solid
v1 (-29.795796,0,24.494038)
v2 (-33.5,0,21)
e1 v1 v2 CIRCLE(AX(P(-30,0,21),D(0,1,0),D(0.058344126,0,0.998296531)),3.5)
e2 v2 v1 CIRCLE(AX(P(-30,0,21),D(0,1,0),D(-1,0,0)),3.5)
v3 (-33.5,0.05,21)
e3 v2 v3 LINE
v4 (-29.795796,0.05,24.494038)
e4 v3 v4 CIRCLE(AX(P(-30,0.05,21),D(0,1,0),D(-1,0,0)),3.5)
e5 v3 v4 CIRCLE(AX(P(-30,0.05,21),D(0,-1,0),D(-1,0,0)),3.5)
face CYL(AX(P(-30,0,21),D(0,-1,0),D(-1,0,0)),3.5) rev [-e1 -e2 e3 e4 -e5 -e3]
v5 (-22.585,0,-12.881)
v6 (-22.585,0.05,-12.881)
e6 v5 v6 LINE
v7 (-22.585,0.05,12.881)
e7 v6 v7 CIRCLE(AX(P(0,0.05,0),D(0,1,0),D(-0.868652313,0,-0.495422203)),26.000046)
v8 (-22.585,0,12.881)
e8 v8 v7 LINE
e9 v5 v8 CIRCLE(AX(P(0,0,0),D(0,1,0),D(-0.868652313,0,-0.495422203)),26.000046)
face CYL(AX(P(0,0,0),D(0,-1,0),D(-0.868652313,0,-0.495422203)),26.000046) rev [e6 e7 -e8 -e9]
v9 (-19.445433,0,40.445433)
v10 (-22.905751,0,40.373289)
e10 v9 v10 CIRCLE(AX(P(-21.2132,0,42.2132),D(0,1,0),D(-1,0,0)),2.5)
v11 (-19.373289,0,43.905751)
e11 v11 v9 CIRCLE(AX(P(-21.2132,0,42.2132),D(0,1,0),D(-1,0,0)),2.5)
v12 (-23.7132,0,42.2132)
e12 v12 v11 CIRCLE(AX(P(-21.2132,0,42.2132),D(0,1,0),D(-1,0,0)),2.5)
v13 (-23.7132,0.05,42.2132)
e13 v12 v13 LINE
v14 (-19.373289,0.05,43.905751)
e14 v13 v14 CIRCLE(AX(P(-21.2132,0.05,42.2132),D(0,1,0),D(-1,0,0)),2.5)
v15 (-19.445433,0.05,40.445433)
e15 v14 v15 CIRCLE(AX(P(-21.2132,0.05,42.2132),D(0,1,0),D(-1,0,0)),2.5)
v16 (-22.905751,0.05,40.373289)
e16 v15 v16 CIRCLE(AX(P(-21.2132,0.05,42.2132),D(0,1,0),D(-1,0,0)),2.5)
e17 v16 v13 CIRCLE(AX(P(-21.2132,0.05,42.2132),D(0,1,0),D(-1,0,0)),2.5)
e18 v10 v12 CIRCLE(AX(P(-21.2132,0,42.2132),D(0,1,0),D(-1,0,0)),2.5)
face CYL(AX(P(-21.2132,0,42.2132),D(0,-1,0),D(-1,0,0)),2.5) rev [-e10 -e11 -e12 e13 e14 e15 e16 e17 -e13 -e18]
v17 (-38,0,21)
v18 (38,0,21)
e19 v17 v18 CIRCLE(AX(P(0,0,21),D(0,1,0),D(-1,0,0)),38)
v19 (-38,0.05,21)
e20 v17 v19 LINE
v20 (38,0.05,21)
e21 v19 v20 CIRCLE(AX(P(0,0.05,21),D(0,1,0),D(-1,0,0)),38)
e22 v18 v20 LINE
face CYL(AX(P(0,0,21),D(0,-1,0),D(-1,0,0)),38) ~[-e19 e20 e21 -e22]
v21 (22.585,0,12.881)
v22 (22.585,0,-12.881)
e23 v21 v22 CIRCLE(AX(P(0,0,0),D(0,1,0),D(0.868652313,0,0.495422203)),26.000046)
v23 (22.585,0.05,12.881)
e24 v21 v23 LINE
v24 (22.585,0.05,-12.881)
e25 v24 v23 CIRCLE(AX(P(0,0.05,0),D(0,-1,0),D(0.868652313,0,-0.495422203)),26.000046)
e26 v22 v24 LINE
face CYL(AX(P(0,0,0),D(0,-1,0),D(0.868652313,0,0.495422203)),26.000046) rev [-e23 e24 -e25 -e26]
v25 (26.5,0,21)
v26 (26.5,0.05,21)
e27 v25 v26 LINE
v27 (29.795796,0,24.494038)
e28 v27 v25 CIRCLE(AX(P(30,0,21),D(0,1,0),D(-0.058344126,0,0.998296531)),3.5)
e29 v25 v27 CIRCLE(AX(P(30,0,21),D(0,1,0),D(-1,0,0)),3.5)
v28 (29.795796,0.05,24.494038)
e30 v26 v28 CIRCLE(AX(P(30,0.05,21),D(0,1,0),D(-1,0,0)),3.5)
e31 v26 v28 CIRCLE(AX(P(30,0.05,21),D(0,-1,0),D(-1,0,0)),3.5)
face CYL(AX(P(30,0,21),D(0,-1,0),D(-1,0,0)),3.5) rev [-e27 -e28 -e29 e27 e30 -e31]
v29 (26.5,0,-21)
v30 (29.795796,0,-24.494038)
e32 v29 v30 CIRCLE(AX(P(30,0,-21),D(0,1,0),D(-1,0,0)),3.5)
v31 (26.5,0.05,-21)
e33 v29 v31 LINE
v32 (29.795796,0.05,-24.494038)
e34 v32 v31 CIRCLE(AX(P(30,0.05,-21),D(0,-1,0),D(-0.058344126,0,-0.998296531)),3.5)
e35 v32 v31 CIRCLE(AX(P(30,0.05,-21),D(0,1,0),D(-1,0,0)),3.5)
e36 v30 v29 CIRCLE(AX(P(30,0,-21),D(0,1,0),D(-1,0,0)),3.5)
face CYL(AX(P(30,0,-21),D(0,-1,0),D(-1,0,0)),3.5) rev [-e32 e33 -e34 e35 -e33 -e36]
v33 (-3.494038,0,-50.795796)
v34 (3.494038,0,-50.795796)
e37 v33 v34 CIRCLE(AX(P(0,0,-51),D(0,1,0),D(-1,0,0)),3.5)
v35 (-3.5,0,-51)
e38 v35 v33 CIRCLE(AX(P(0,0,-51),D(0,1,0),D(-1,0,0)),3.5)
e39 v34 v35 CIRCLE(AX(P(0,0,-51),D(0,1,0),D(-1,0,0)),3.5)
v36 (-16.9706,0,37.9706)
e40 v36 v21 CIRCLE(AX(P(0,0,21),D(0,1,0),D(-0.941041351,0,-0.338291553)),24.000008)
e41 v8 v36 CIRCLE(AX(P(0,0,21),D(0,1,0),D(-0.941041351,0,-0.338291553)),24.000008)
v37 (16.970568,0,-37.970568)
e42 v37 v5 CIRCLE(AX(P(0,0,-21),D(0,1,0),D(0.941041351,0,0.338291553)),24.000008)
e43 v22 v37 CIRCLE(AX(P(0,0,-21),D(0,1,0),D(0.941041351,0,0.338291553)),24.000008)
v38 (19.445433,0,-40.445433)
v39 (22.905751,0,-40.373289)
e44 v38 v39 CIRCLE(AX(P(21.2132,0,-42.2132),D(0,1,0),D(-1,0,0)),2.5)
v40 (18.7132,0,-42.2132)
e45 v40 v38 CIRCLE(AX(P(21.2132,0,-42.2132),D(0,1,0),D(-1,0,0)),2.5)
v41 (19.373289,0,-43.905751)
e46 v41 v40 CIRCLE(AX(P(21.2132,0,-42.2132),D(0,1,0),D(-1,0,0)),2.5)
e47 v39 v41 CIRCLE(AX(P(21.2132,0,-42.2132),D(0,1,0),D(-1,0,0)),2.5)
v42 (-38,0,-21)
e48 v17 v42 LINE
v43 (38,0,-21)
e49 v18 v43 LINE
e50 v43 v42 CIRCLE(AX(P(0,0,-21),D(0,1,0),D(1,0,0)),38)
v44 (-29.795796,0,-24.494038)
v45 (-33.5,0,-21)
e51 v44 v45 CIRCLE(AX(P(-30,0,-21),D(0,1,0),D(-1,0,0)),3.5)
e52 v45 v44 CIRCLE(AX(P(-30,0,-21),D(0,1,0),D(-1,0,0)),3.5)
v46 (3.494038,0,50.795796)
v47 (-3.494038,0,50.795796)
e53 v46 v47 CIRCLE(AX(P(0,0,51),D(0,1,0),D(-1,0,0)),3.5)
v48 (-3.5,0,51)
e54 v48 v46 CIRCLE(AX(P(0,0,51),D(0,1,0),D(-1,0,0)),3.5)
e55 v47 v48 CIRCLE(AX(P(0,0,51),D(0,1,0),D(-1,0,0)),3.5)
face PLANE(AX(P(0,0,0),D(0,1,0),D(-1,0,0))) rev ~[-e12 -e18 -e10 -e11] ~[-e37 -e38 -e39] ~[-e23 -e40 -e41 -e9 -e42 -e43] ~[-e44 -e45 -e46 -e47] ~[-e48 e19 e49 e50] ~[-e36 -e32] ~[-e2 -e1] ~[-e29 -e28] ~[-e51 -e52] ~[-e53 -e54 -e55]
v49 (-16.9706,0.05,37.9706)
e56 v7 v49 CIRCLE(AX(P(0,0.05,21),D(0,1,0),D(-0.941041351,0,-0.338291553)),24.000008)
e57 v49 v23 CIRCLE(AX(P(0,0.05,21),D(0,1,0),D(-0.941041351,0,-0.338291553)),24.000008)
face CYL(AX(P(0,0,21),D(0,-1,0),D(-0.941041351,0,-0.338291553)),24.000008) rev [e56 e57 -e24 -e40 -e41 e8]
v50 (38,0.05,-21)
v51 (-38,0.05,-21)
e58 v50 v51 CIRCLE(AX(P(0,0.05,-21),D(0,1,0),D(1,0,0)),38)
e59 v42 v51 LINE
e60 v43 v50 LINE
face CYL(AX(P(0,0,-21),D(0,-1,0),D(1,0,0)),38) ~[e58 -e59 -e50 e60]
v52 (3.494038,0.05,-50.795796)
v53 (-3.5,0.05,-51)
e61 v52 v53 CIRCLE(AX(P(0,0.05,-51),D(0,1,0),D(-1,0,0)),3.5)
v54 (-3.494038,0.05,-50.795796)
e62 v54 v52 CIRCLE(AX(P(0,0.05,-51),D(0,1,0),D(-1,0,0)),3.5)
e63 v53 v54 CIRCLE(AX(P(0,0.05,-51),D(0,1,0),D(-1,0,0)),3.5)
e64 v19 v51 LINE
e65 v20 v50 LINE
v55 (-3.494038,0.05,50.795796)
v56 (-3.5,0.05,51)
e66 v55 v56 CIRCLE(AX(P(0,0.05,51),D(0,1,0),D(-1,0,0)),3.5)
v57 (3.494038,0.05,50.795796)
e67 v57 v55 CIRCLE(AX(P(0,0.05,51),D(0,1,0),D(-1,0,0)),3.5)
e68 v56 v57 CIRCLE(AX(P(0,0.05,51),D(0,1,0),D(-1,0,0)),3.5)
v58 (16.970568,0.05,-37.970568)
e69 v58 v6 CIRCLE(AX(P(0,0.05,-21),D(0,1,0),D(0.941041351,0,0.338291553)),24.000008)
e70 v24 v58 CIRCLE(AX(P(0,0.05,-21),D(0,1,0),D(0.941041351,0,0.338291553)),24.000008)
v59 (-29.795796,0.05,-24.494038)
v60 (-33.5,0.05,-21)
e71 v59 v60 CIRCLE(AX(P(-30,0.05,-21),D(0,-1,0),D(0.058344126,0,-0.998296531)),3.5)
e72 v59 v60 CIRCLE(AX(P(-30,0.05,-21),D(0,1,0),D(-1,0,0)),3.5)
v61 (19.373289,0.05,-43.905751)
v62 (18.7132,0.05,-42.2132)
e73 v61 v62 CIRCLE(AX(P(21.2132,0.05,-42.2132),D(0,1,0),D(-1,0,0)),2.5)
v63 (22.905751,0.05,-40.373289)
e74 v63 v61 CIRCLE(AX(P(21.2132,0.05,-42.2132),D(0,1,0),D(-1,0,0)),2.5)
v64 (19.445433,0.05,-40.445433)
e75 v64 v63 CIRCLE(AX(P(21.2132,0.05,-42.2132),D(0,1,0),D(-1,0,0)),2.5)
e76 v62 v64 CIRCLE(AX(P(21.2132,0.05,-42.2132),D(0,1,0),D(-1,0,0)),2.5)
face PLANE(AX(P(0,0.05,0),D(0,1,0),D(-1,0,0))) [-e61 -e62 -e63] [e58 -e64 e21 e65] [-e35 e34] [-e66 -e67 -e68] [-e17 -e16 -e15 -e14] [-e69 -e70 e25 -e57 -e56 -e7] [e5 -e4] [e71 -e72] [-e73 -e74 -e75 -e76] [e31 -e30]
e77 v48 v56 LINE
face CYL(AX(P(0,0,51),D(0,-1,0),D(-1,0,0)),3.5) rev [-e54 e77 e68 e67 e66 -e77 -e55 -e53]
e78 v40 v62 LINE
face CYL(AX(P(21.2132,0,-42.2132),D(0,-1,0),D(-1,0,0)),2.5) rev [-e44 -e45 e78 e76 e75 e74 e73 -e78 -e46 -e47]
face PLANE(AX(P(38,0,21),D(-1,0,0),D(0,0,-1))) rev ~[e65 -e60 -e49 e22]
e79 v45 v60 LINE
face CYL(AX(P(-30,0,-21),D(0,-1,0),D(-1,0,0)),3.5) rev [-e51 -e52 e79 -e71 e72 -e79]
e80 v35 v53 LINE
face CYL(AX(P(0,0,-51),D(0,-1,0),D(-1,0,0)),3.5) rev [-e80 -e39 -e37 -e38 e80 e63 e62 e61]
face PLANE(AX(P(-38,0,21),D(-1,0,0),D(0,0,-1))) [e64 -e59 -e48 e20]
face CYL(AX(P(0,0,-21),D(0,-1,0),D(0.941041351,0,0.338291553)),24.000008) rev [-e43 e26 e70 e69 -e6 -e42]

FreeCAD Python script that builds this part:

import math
import FreeCAD as App
import Part
import Sketcher

doc = App.newDocument("Part")
params = doc.addObject("Spreadsheet::Sheet", "Params")
for row, (alias, value) in enumerate([
    ("sketch1_diameter", "7 mm"),
    ("sketch1_radius", "2.5 mm"),
    ("sketch1_height", "42 mm"),
    ("sketch1_radius2", "38 mm"),
    ("sketch1_radius3", "24 mm"),
    ("pad1_length", "0.05 mm"),
], start=1):
    params.set(f"A{row}", alias)
    params.set(f"B{row}", "=" + value)
    params.setAlias(f"B{row}", alias)

body = doc.addObject("PartDesign::Body", "Body")

# Sketch on XZ plane
sketch1 = body.newObject("Sketcher::SketchObject", "Sketch")
sketch1.AttachmentSupport = (doc.getObject("XZ_Plane"), [""])
sketch1.MapMode = "FlatFace"
sketch1.addGeometry(Part.LineSegment(App.Vector(-38, -21, 0), App.Vector(-38, 21, 0)), False)
sketch1.addGeometry(Part.ArcOfCircle(Part.Circle(App.Vector(0, 21, 0), App.Vector(0, 0, 1), 38), math.radians(0), math.radians(180)), False)
sketch1.addGeometry(Part.LineSegment(App.Vector(38, 21, 0), App.Vector(38, -21, 0)), False)
sketch1.addGeometry(Part.ArcOfCircle(Part.Circle(App.Vector(0, -21, 0), App.Vector(0, 0, 1), 38), math.radians(180), math.radians(360)), False)
sketch1.addGeometry(Part.ArcOfCircle(Part.Circle(App.Vector(21.2, -42.2, 0), App.Vector(0, 0, 1), 2.5), math.radians(47), math.radians(135)), False)
sketch1.addGeometry(Part.ArcOfCircle(Part.Circle(App.Vector(21.2, -42.2, 0), App.Vector(0, 0, 1), 2.5), math.radians(135), math.radians(223)), False)
sketch1.addGeometry(Part.ArcOfCircle(Part.Circle(App.Vector(21.2, -42.2, 0), App.Vector(0, 0, 1), 2.5), math.radians(-137), math.radians(47)), False)
sketch1.addGeometry(Part.Circle(App.Vector(30, -21, 0), App.Vector(0, 0, 1), 3.5), False)
sketch1.addGeometry(Part.ArcOfCircle(Part.Circle(App.Vector(0, -51, 0), App.Vector(0, 0, 1), 3.5), math.radians(3), math.radians(177)), False)
sketch1.addGeometry(Part.ArcOfCircle(Part.Circle(App.Vector(0, -51, 0), App.Vector(0, 0, 1), 3.5), math.radians(177), math.radians(363)), False)
sketch1.addGeometry(Part.Circle(App.Vector(-30, -21, 0), App.Vector(0, 0, 1), 3.5), False)
sketch1.addGeometry(Part.Circle(App.Vector(30, 21, 0), App.Vector(0, 0, 1), 3.5), False)
sketch1.addGeometry(Part.ArcOfCircle(Part.Circle(App.Vector(0, 21, 0), App.Vector(0, 0, 1), 24), math.radians(-20), math.radians(135)), False)
sketch1.addGeometry(Part.ArcOfCircle(Part.Circle(App.Vector(0, 21, 0), App.Vector(0, 0, 1), 24), math.radians(135), math.radians(200)), False)
sketch1.addGeometry(Part.ArcOfCircle(Part.Circle(App.Vector(0, 0, 0), App.Vector(0, 0, 1), 26), math.radians(150), math.radians(210)), False)
sketch1.addGeometry(Part.ArcOfCircle(Part.Circle(App.Vector(0, -21, 0), App.Vector(0, 0, 1), 24), math.radians(160), math.radians(315)), False)
sketch1.addGeometry(Part.ArcOfCircle(Part.Circle(App.Vector(0, -21, 0), App.Vector(0, 0, 1), 24), math.radians(-45), math.radians(20)), False)
sketch1.addGeometry(Part.ArcOfCircle(Part.Circle(App.Vector(0, 0, 0), App.Vector(0, 0, 1), 26), math.radians(-30), math.radians(30)), False)
sketch1.addGeometry(Part.Circle(App.Vector(-30, 21, 0), App.Vector(0, 0, 1), 3.5), False)
sketch1.addGeometry(Part.ArcOfCircle(Part.Circle(App.Vector(0, 51, 0), App.Vector(0, 0, 1), 3.5), math.radians(-3), math.radians(183)), False)
sketch1.addGeometry(Part.ArcOfCircle(Part.Circle(App.Vector(0, 51, 0), App.Vector(0, 0, 1), 3.5), math.radians(-177), math.radians(-3)), False)
sketch1.addGeometry(Part.ArcOfCircle(Part.Circle(App.Vector(-21.2, 42.2, 0), App.Vector(0, 0, 1), 2.5), math.radians(-45), math.radians(43)), False)
sketch1.addGeometry(Part.ArcOfCircle(Part.Circle(App.Vector(-21.2, 42.2, 0), App.Vector(0, 0, 1), 2.5), math.radians(43), math.radians(227)), False)
sketch1.addGeometry(Part.ArcOfCircle(Part.Circle(App.Vector(-21.2, 42.2, 0), App.Vector(0, 0, 1), 2.5), math.radians(-133), math.radians(-45)), False)
sketch1.addConstraint(Sketcher.Constraint("Tangent", 0, 2, 1, 2))
sketch1.addConstraint(Sketcher.Constraint("Tangent", 1, 1, 2, 1))
sketch1.addConstraint(Sketcher.Constraint("Tangent", 2, 2, 3, 2))
sketch1.addConstraint(Sketcher.Constraint("Tangent", 3, 1, 0, 1))
sketch1.addConstraint(Sketcher.Constraint("Tangent", 4, 2, 5, 1))
sketch1.addConstraint(Sketcher.Constraint("Tangent", 5, 2, 6, 1))
sketch1.addConstraint(Sketcher.Constraint("Tangent", 6, 2, 4, 1))
sketch1.addConstraint(Sketcher.Constraint("Tangent", 8, 1, 9, 2))
sketch1.addConstraint(Sketcher.Constraint("Coincident", 9, 1, 8, 2))
sketch1.addConstraint(Sketcher.Constraint("Tangent", 12, 2, 13, 1))
sketch1.addConstraint(Sketcher.Constraint("Coincident", 13, 2, 14, 1))
sketch1.addConstraint(Sketcher.Constraint("Coincident", 14, 2, 15, 1))
sketch1.addConstraint(Sketcher.Constraint("Tangent", 15, 2, 16, 1))
sketch1.addConstraint(Sketcher.Constraint("Coincident", 16, 2, 17, 1))
sketch1.addConstraint(Sketcher.Constraint("Coincident", 17, 2, 12, 1))
sketch1.addConstraint(Sketcher.Constraint("Tangent", 19, 1, 20, 2))
sketch1.addConstraint(Sketcher.Constraint("Coincident", 20, 1, 19, 2))
sketch1.addConstraint(Sketcher.Constraint("Tangent", 21, 2, 22, 1))
sketch1.addConstraint(Sketcher.Constraint("Tangent", 22, 2, 23, 1))
sketch1.addConstraint(Sketcher.Constraint("Tangent", 23, 2, 21, 1))
sketch1.addConstraint(Sketcher.Constraint("Vertical", 0))
sketch1.addConstraint(Sketcher.Constraint("Vertical", 2))
sketch1.addConstraint(Sketcher.Constraint("Coincident", 14, 3, -1, 1))
sketch1.addConstraint(Sketcher.Constraint("Coincident", 17, 3, -1, 1))
sketch1.addConstraint(Sketcher.Constraint("Coincident", 12, 3, 1, 3))
sketch1.addConstraint(Sketcher.Constraint("Coincident", 15, 3, 3, 3))
sketch1.addConstraint(Sketcher.Constraint("Equal", 7, 8))
sketch1.addConstraint(Sketcher.Constraint("Equal", 9, 10))
sketch1.addConstraint(Sketcher.Constraint("Equal", 10, 11))
sketch1.addConstraint(Sketcher.Constraint("Equal", 12, 13))
sketch1.addConstraint(Sketcher.Constraint("Equal", 13, 15))
sketch1.addConstraint(Sketcher.Constraint("Equal", 15, 16))
sketch1.addConstraint(Sketcher.Constraint("Equal", 14, 17))
sketch1.addConstraint(Sketcher.Constraint("Equal", 11, 18))
sketch1.addConstraint(Sketcher.Constraint("Equal", 18, 19))
sketch1.addConstraint(Sketcher.Constraint("Equal", 6, 21))
sketch1.addConstraint(Sketcher.Constraint("Symmetric", 1, 3, 3, 3, -1, 1))
sketch1.addConstraint(Sketcher.Constraint("Symmetric", 10, 3, 11, 3, -1, 1))
sketch1.addConstraint(Sketcher.Constraint("Symmetric", 7, 3, 18, 3, -1, 1))
sketch1.addConstraint(Sketcher.Constraint("Symmetric", 8, 3, 19, 3, -1, 1))
sketch1.addConstraint(Sketcher.Constraint("Symmetric", 4, 3, 21, 3, -1, 1))
sketch1.addConstraint(Sketcher.Constraint("Symmetric", 7, 3, 10, 3, -2))
sketch1.addConstraint(Sketcher.Constraint("Symmetric", 8, 1, 9, 1, -2))
sketch1.addConstraint(Sketcher.Constraint("Horizontal", 3, 3, 7, 3))
sketch1.addConstraint(Sketcher.Constraint("Horizontal", 19, 1, 20, 1))
sketch1.addConstraint(Sketcher.Constraint("Vertical", 8, 1, 19, 1))
sketch1.addConstraint(Sketcher.Constraint("Diameter", 7, 7.0))
sketch1.addConstraint(Sketcher.Constraint("Radius", 4, 2.5))
sketch1.addConstraint(Sketcher.Constraint("DistanceY", 0, 1, 0, 2, 42.0))
sketch1.addConstraint(Sketcher.Constraint("Radius", 1, 38.0))
sketch1.addConstraint(Sketcher.Constraint("Radius", 12, 24.0))
sketch1.addConstraint(Sketcher.Constraint("Radius", 14, 26.0))
sketch1.addConstraint(Sketcher.Constraint("DistanceX", -1, 1, 7, 3, 30.0))
sketch1.addConstraint(Sketcher.Constraint("DistanceY", 8, 3, -1, 1, 51.0))
sketch1.addConstraint(Sketcher.Constraint("DistanceX", 5, 2, 4, 3, 1.84))
sketch1.addConstraint(Sketcher.Constraint("DistanceY", 4, 3, 6, 2, 1.84))
sketch1.addConstraint(Sketcher.Constraint("DistanceY", 8, 1, 5, 2, 6.89))
sketch1.addConstraint(Sketcher.Constraint("DistanceX", 21, 3, 21, 2, 1.84))
sketch1.addConstraint(Sketcher.Constraint("DistanceY", 22, 2, 21, 3, 1.84))
sketch1.addConstraint(Sketcher.Constraint("DistanceX", -1, 1, 8, 1, 3.494))
sketch1.addConstraint(Sketcher.Constraint("DistanceX", -1, 1, 4, 3, 21.2132))
sketch1.addConstraint(Sketcher.Constraint("DistanceX", -1, 1, 4, 2, 19.4454))
sketch1.addConstraint(Sketcher.Constraint("DistanceX", 12, 2, -1, 1, 16.9706))
sketch1.addConstraint(Sketcher.Constraint("DistanceX", -1, 1, 15, 2, 16.9706))
sketch1.addConstraint(Sketcher.Constraint("DistanceX", 23, 2, -1, 1, 19.4454))
sketch1.setExpression("Constraints[46]", "Params.sketch1_diameter")
sketch1.setExpression("Constraints[47]", "Params.sketch1_radius")
sketch1.setExpression("Constraints[48]", "Params.sketch1_height")
sketch1.setExpression("Constraints[49]", "Params.sketch1_radius2")
sketch1.setExpression("Constraints[50]", "Params.sketch1_radius3")
pad1 = body.newObject("PartDesign::Pad", "Pad")
pad1.Profile = sketch1
pad1.setExpression("Length", "Params.pad1_length")
pad1.Reversed = True

doc.recompute()
